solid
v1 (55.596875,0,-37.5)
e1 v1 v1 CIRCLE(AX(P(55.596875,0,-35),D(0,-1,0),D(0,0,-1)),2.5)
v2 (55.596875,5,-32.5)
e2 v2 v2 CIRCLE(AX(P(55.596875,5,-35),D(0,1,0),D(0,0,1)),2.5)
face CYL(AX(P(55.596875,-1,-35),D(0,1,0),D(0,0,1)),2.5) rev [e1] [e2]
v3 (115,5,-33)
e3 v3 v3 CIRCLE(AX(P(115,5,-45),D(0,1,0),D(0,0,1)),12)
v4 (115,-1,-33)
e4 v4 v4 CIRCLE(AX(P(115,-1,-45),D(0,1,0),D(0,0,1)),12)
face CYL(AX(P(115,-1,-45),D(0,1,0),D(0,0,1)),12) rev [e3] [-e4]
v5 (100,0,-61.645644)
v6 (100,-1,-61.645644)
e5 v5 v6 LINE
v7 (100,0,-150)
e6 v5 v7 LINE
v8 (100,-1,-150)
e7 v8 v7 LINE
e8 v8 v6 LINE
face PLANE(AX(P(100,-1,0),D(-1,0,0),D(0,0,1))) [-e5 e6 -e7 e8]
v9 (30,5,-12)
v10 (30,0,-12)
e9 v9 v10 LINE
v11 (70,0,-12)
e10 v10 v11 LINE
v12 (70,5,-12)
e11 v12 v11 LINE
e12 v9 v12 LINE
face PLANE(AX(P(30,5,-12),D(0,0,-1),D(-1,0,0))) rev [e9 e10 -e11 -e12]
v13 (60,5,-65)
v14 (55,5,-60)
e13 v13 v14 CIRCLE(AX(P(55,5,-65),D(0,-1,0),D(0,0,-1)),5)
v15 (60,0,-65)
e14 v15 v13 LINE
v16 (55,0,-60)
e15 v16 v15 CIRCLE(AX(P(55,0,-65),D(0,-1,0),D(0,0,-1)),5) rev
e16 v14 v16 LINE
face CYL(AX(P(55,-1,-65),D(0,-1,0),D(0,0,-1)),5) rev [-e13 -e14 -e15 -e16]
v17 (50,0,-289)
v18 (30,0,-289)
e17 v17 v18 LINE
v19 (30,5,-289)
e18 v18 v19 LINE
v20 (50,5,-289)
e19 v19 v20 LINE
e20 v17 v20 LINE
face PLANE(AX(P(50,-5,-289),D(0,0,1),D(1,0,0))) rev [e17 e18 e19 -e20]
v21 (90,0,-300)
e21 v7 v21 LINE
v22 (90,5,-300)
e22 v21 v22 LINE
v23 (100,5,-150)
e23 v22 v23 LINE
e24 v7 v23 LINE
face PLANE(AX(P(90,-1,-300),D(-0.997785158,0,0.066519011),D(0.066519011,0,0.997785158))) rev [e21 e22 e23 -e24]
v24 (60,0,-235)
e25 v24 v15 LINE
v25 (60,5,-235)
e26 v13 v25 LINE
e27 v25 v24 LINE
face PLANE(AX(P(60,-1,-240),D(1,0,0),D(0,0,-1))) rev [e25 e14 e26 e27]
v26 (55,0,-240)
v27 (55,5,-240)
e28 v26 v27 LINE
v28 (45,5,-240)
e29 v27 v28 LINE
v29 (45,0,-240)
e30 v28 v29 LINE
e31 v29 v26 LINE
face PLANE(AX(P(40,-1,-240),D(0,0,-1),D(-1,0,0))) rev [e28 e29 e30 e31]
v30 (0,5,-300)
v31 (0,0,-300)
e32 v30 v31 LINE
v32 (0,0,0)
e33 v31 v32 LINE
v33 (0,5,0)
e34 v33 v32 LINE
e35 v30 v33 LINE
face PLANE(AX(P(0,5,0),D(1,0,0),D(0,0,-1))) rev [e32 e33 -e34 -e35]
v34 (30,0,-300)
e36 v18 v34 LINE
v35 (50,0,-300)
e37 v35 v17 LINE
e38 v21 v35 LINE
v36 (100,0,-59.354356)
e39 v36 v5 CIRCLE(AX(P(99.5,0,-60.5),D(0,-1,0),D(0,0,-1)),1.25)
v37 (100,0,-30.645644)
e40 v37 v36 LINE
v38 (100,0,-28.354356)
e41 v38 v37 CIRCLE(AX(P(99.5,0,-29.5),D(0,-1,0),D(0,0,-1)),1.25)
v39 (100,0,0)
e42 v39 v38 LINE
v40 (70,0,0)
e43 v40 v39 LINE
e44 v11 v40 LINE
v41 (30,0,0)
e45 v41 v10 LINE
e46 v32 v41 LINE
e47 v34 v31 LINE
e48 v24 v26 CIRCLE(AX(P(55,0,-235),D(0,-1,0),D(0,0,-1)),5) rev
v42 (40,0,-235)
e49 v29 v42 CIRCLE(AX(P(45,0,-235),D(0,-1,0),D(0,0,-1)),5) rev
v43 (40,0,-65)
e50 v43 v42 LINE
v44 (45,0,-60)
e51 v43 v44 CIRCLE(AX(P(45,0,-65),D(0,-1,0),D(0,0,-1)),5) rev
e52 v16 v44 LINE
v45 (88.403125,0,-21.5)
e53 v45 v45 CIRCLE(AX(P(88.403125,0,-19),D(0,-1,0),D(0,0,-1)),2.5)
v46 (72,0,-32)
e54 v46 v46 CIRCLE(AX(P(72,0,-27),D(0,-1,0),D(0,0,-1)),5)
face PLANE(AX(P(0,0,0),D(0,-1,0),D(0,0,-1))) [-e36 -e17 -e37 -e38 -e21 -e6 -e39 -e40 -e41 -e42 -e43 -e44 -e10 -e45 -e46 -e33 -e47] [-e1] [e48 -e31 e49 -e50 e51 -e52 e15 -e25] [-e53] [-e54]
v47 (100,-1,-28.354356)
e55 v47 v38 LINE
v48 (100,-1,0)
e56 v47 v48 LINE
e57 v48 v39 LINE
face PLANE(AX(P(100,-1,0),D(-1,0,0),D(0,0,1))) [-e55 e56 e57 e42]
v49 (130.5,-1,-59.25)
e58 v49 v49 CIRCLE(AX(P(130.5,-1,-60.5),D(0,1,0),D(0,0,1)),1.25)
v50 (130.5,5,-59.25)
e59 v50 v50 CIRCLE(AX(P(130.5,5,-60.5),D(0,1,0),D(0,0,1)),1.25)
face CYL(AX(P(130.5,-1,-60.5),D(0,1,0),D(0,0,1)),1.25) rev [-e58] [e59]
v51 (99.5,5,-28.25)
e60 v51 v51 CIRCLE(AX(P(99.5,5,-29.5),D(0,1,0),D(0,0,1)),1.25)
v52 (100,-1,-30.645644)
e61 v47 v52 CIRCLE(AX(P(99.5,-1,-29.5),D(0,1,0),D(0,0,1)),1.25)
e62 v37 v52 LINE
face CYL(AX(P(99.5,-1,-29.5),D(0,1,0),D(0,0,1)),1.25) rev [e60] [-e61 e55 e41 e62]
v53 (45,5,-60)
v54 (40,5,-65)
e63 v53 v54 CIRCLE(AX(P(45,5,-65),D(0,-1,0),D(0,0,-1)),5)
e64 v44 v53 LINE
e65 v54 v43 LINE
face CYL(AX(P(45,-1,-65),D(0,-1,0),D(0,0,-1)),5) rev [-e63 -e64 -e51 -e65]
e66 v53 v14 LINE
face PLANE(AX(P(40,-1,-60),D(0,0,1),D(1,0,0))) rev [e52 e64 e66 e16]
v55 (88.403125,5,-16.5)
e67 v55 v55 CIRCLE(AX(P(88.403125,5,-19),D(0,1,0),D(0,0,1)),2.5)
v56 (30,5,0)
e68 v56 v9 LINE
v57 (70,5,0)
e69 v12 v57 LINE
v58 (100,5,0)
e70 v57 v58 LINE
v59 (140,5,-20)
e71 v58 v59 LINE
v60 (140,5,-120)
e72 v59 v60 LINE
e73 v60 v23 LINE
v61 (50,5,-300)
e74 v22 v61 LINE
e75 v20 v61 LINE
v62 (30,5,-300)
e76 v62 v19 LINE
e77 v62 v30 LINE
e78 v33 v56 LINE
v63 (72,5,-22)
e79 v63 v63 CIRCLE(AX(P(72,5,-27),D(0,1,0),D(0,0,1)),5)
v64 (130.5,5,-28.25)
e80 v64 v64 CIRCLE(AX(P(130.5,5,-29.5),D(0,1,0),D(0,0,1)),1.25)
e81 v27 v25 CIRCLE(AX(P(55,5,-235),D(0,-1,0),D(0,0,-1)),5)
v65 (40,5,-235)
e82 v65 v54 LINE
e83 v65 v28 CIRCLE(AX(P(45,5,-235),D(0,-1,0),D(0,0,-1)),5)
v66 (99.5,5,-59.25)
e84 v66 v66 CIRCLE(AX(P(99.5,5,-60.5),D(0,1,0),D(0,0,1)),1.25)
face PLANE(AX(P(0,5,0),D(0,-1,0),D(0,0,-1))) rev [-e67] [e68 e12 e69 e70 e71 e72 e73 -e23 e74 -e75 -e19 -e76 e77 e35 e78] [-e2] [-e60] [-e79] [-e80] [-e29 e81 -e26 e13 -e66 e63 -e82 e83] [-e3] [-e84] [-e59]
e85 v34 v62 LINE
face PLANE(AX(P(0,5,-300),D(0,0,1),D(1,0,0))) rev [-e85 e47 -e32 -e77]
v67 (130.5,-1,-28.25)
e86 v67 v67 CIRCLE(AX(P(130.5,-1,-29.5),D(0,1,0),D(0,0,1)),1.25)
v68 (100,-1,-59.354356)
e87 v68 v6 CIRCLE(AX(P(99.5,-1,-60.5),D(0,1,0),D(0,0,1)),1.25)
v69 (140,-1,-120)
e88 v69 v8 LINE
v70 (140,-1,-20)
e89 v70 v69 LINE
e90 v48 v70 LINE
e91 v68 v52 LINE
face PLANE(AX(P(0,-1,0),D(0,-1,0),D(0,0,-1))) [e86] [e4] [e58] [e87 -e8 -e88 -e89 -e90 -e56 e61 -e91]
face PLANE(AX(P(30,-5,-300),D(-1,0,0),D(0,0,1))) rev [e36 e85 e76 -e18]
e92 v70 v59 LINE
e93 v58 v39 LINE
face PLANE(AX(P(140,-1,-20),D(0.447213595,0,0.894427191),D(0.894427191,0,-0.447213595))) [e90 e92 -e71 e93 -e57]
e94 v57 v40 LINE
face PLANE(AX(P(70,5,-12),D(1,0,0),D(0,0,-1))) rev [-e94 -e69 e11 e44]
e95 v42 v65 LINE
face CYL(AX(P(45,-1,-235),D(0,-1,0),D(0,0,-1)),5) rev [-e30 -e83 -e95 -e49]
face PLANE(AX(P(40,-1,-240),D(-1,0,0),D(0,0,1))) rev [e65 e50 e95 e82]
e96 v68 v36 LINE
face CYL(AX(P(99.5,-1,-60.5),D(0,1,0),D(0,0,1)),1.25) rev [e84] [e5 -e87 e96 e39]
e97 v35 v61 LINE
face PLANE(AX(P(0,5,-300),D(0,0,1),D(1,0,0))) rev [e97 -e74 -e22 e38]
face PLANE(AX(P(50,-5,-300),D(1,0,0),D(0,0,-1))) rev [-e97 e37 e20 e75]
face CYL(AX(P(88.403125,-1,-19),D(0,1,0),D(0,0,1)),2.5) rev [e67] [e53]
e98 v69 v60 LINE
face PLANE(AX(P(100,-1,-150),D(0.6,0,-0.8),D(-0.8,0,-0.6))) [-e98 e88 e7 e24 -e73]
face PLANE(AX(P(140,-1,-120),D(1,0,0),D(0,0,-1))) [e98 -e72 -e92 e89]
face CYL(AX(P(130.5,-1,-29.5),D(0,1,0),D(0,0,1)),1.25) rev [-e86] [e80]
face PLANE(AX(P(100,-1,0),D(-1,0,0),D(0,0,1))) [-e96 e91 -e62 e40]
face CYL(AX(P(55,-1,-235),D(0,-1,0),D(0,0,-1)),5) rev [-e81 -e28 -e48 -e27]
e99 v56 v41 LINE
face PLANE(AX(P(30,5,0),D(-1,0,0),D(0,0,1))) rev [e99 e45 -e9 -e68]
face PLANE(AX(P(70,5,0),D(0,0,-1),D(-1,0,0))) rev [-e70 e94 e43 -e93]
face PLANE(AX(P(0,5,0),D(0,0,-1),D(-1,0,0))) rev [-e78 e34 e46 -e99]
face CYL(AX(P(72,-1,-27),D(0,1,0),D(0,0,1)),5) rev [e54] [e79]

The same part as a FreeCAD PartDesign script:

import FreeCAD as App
import Part
import Sketcher

V = App.Vector
Q = App.Units.Quantity


def edges_at(feature, points):
    """Names of the edges that pass closest to the given points."""
    edges = feature.Shape.Edges
    near = lambda p: min(range(len(edges)), key=lambda i: edges[i].distToShape(Part.Vertex(*p))[0])
    return sorted({f"Edge{near(p) + 1}" for p in points})


def add_polygon(sketch, points):
    """Adds a closed chain of lines whose ends are joined by coincident constraints."""
    first, n = sketch.GeometryCount, len(points)
    for a, b in zip(points, points[1:] + points[:1]):
        sketch.addGeometry(Part.LineSegment(App.Vector(*a, 0), App.Vector(*b, 0)), False)
    for i in range(n):
        sketch.addConstraint(Sketcher.Constraint("Coincident", first + i, 2, first + (i + 1) % n, 1))

doc = App.newDocument("Part")
params = doc.addObject("Spreadsheet::Sheet", "Params")
for row, (alias, value) in enumerate([
    ("sketch1_width", "30 mm"),
    ("sketch1_width2", "40 mm"),
    ("sketch1_height", "12 mm"),
    ("sketch1_height2", "300 mm"),
    ("pad1_length", "5 mm"),
    ("sketch2_diameter", "10 mm"),
    ("sketch2_diameter2", "5 mm"),
    ("pocket1_length", "6 mm"),
    ("sketch3_width", "20 mm"),
    ("sketch3_height", "11 mm"),
    ("pocket2_length", "10 mm"),
    ("sketch4_height", "150 mm"),
    ("sketch4_height2", "100 mm"),
    ("sketch4_length", "50 mm"),
    ("pad2_length", "6 mm"),
    ("sketch5_diameter", "24 mm"),
    ("sketch5_diameter2", "2.5 mm"),
    ("pocket3_length", "6 mm"),
    ("sketch6_width", "10 mm"),
    ("sketch6_width2", "20 mm"),
    ("sketch6_height", "150 mm"),
    ("sketch6_height2", "180 mm"),
    ("pocket4_length", "6 mm"),
    ("fillet_radius", "5 mm"),
], start=1):
    params.set(f"A{row}", alias)
    params.set(f"B{row}", "=" + value)
    params.setAlias(f"B{row}", alias)

body = doc.addObject("PartDesign::Body", "Body")

sketch1 = body.newObject("Sketcher::SketchObject", "Sketch")
sketch1.AttachmentSupport = (doc.getObject("XZ_Plane"), [""])
sketch1.MapMode = "FlatFace"
add_polygon(sketch1, [(0, 0), (30, 0), (30, -12), (70, -12), (70, 0), (100, 0), (100, -300), (0, -300)])
sketch1.addConstraint(Sketcher.Constraint("Horizontal", 0))
sketch1.addConstraint(Sketcher.Constraint("Vertical", 1))
sketch1.addConstraint(Sketcher.Constraint("Horizontal", 2))
sketch1.addConstraint(Sketcher.Constraint("Vertical", 3))
sketch1.addConstraint(Sketcher.Constraint("Horizontal", 4))
sketch1.addConstraint(Sketcher.Constraint("Vertical", 5))
sketch1.addConstraint(Sketcher.Constraint("Horizontal", 6))
sketch1.addConstraint(Sketcher.Constraint("Vertical", 7))
sketch1.addConstraint(Sketcher.Constraint("Coincident", 7, 2, -1, 1))
sketch1.addConstraint(Sketcher.Constraint("PointOnObject", 3, 2, -1))
sketch1.addConstraint(Sketcher.Constraint("Equal", 0, 4))
sketch1.addConstraint(Sketcher.Constraint("DistanceX", 0, 1, 0, 2, Q("30 mm")))
sketch1.addConstraint(Sketcher.Constraint("DistanceX", 2, 1, 2, 2, Q("40 mm")))
sketch1.addConstraint(Sketcher.Constraint("DistanceY", 1, 2, 1, 1, Q("12 mm")))
sketch1.addConstraint(Sketcher.Constraint("DistanceY", 5, 2, 5, 1, Q("300 mm")))
sketch1.setExpression("Constraints[19]", "Params.sketch1_width")
sketch1.setExpression("Constraints[20]", "Params.sketch1_width2")
sketch1.setExpression("Constraints[21]", "Params.sketch1_height")
sketch1.setExpression("Constraints[22]", "Params.sketch1_height2")
pad1 = body.newObject("PartDesign::Pad", "Pad")
pad1.Profile = sketch1
pad1.setExpression("Length", "Params.pad1_length")
pad1.Reversed = True

sketch2 = body.newObject("Sketcher::SketchObject", "Sketch001")
sketch2.AttachmentSupport = (doc.getObject("XZ_Plane"), [""])
sketch2.MapMode = "FlatFace"
sketch2.AttachmentOffset = App.Placement(V(0, 0, -5), App.Rotation())
sketch2.addGeometry(Part.Circle(V(72, -27, 0), V(0, 0, 1), 5), False)
sketch2.addGeometry(Part.Circle(V(88.4, -19, 0), V(0, 0, 1), 2.5), False)
sketch2.addGeometry(Part.Circle(V(55.6, -35, 0), V(0, 0, 1), 2.5), False)
sketch2.addConstraint(Sketcher.Constraint("Equal", 1, 2))
sketch2.addConstraint(Sketcher.Constraint("Diameter", 0, Q("10 mm")))
sketch2.addConstraint(Sketcher.Constraint("Diameter", 1, Q("5 mm")))
sketch2.addConstraint(Sketcher.Constraint("DistanceX", -1, 1, 0, 3, Q("72 mm")))
sketch2.addConstraint(Sketcher.Constraint("DistanceY", 0, 3, -1, 1, Q("27 mm")))
sketch2.addConstraint(Sketcher.Constraint("DistanceY", 1, 3, -1, 1, Q("19 mm")))
sketch2.addConstraint(Sketcher.Constraint("DistanceY", 2, 3, -1, 1, Q("35 mm")))
sketch2.addConstraint(Sketcher.Constraint("DistanceX", 2, 3, 1, 3, Q("32.806249 mm")))
sketch2.addConstraint(Sketcher.Constraint("DistanceX", -1, 1, 1, 3, Q("88.403125 mm")))
sketch2.setExpression("Constraints[1]", "Params.sketch2_diameter")
sketch2.setExpression("Constraints[2]", "Params.sketch2_diameter2")
pocket1 = body.newObject("PartDesign::Pocket", "Pocket")
pocket1.Profile = sketch2
pocket1.setExpression("Length", "Params.pocket1_length")
pocket1.Reversed = True

sketch3 = body.newObject("Sketcher::SketchObject", "Sketch002")
sketch3.AttachmentSupport = (doc.getObject("XZ_Plane"), [""])
sketch3.MapMode = "FlatFace"
sketch3.AttachmentOffset = App.Placement(V(0, 0, -5), App.Rotation())
add_polygon(sketch3, [(30, -300), (30, -289), (50, -289), (50, -300)])
sketch3.addConstraint(Sketcher.Constraint("Vertical", 0))
sketch3.addConstraint(Sketcher.Constraint("Horizontal", 1))
sketch3.addConstraint(Sketcher.Constraint("Vertical", 2))
sketch3.addConstraint(Sketcher.Constraint("Horizontal", 3))
sketch3.addConstraint(Sketcher.Constraint("DistanceX", 1, 1, 1, 2, Q("20 mm")))
sketch3.addConstraint(Sketcher.Constraint("DistanceY", 0, 1, 0, 2, Q("11 mm")))
sketch3.addConstraint(Sketcher.Constraint("DistanceX", -1, 1, 0, 2, Q("30 mm")))
sketch3.addConstraint(Sketcher.Constraint("DistanceY", 0, 2, -1, 1, Q("289 mm")))
sketch3.setExpression("Constraints[8]", "Params.sketch3_width")
sketch3.setExpression("Constraints[9]", "Params.sketch3_height")
pocket2 = body.newObject("PartDesign::Pocket", "Pocket001")
pocket2.Profile = sketch3
pocket2.setExpression("Length", "Params.pocket2_length")
pocket2.Reversed = True

sketch4 = body.newObject("Sketcher::SketchObject", "Sketch003")
sketch4.AttachmentSupport = (doc.getObject("XZ_Plane"), [""])
sketch4.MapMode = "FlatFace"
sketch4.AttachmentOffset = App.Placement(V(0, 0, -5), App.Rotation())
add_polygon(sketch4, [(100, -150), (100, 0), (140, -20), (140, -120)])
sketch4.addConstraint(Sketcher.Constraint("Vertical", 0))
sketch4.addConstraint(Sketcher.Constraint("Vertical", 2))
sketch4.addConstraint(Sketcher.Constraint("PointOnObject", 0, 2, -1))
sketch4.addConstraint(Sketcher.Constraint("DistanceY", 0, 1, 0, 2, Q("150 mm")))
sketch4.addConstraint(Sketcher.Constraint("DistanceY", 2, 2, 2, 1, Q("100 mm")))
sketch4.addConstraint(Sketcher.Constraint("Distance", 3, Q("50 mm")))
sketch4.addConstraint(Sketcher.Constraint("DistanceX", -1, 1, 0, 2, Q("100 mm")))
sketch4.addConstraint(Sketcher.Constraint("DistanceX", -1, 1, 1, 2, Q("140 mm")))
sketch4.setExpression("Constraints[7]", "Params.sketch4_height")
sketch4.setExpression("Constraints[8]", "Params.sketch4_height2")
sketch4.setExpression("Constraints[9]", "Params.sketch4_length")
pad2 = body.newObject("PartDesign::Pad", "Pad001")
pad2.Profile = sketch4
pad2.setExpression("Length", "Params.pad2_length")

sketch5 = body.newObject("Sketcher::SketchObject", "Sketch004")
sketch5.AttachmentSupport = (doc.getObject("XZ_Plane"), [""])
sketch5.MapMode = "FlatFace"
sketch5.AttachmentOffset = App.Placement(V(0, 0, -5), App.Rotation())
sketch5.addGeometry(Part.Circle(V(130.5, -60.5, 0), V(0, 0, 1), 1.2), False)
sketch5.addGeometry(Part.Circle(V(99.5, -60.5, 0), V(0, 0, 1), 1.2), False)
sketch5.addGeometry(Part.Circle(V(99.5, -29.5, 0), V(0, 0, 1), 1.2), False)
sketch5.addGeometry(Part.Circle(V(130.5, -29.5, 0), V(0, 0, 1), 1.2), False)
sketch5.addGeometry(Part.Circle(V(115, -45, 0), V(0, 0, 1), 12), False)
sketch5.addConstraint(Sketcher.Constraint("Equal", 0, 1))
sketch5.addConstraint(Sketcher.Constraint("Equal", 1, 2))
sketch5.addConstraint(Sketcher.Constraint("Equal", 2, 3))
sketch5.addConstraint(Sketcher.Constraint("Horizontal", 0, 3, 1, 3))
sketch5.addConstraint(Sketcher.Constraint("Horizontal", 2, 3, 3, 3))
sketch5.addConstraint(Sketcher.Constraint("Vertical", 1, 3, 2, 3))
sketch5.addConstraint(Sketcher.Constraint("Vertical", 0, 3, 3, 3))
sketch5.addConstraint(Sketcher.Constraint("Diameter", 4, Q("24 mm")))
sketch5.addConstraint(Sketcher.Constraint("Diameter", 0, Q("2.5 mm")))
sketch5.addConstraint(Sketcher.Constraint("DistanceX", -1, 1, 4, 3, Q("115 mm")))
sketch5.addConstraint(Sketcher.Constraint("DistanceY", 4, 3, -1, 1, Q("45 mm")))
sketch5.addConstraint(Sketcher.Constraint("DistanceX", 1, 3, 0, 3, Q("31 mm")))
sketch5.addConstraint(Sketcher.Constraint("DistanceY", 1, 3, 2, 3, Q("31 mm")))
sketch5.addConstraint(Sketcher.Constraint("DistanceX", -1, 1, 0, 3, Q("130.5 mm")))
sketch5.addConstraint(Sketcher.Constraint("DistanceY", 0, 3, -1, 1, Q("60.5 mm")))
sketch5.setExpression("Constraints[7]", "Params.sketch5_diameter")
sketch5.setExpression("Constraints[8]", "Params.sketch5_diameter2")
pocket3 = body.newObject("PartDesign::Pocket", "Pocket002")
pocket3.Profile = sketch5
pocket3.setExpression("Length", "Params.pocket3_length")
pocket3.Reversed = True

sketch6 = body.newObject("Sketcher::SketchObject", "Sketch005")
sketch6.AttachmentSupport = (doc.getObject("XZ_Plane"), [""])
sketch6.MapMode = "FlatFace"
sketch6.AttachmentOffset = App.Placement(V(0, 0, -5), App.Rotation())
add_polygon(sketch6, [(100, -300), (90, -300), (100, -150)])
add_polygon(sketch6, [(40, -240), (40, -60), (60, -60), (60, -240)])
sketch6.addConstraint(Sketcher.Constraint("Horizontal", 0))
sketch6.addConstraint(Sketcher.Constraint("Vertical", 2))
sketch6.addConstraint(Sketcher.Constraint("Vertical", 3))
sketch6.addConstraint(Sketcher.Constraint("Horizontal", 4))
sketch6.addConstraint(Sketcher.Constraint("Vertical", 5))
sketch6.addConstraint(Sketcher.Constraint("Horizontal", 6))
sketch6.addConstraint(Sketcher.Constraint("DistanceX", 0, 2, 0, 1, Q("10 mm")))
sketch6.addConstraint(Sketcher.Constraint("DistanceX", 4, 1, 4, 2, Q("20 mm")))
sketch6.addConstraint(Sketcher.Constraint("DistanceY", 2, 2, 2, 1, Q("150 mm")))
sketch6.addConstraint(Sketcher.Constraint("DistanceY", 3, 1, 3, 2, Q("180 mm")))
sketch6.addConstraint(Sketcher.Constraint("DistanceX", -1, 1, 0, 2, Q("90 mm")))
sketch6.addConstraint(Sketcher.Constraint("DistanceY", 0, 2, -1, 1, Q("300 mm")))
sketch6.addConstraint(Sketcher.Constraint("DistanceX", -1, 1, 3, 2, Q("40 mm")))
sketch6.addConstraint(Sketcher.Constraint("DistanceY", 3, 2, -1, 1, Q("60 mm")))
sketch6.setExpression("Constraints[13]", "Params.sketch6_width")
sketch6.setExpression("Constraints[14]", "Params.sketch6_width2")
sketch6.setExpression("Constraints[15]", "Params.sketch6_height")
sketch6.setExpression("Constraints[16]", "Params.sketch6_height2")
pocket4 = body.newObject("PartDesign::Pocket", "Pocket003")
pocket4.Profile = sketch6
pocket4.setExpression("Length", "Params.pocket4_length")
pocket4.Reversed = True
doc.recompute()

fillet = body.newObject("PartDesign::Fillet", "Fillet")
fillet.Base = (pocket4, edges_at(pocket4, [
    (60, 2.5, -240),
    (60, 2.5, -60),
    (40, 2.5, -60),
    (40, 2.5, -240),
]))
fillet.setExpression("Radius", "Params.fillet_radius")

doc.recompute()
